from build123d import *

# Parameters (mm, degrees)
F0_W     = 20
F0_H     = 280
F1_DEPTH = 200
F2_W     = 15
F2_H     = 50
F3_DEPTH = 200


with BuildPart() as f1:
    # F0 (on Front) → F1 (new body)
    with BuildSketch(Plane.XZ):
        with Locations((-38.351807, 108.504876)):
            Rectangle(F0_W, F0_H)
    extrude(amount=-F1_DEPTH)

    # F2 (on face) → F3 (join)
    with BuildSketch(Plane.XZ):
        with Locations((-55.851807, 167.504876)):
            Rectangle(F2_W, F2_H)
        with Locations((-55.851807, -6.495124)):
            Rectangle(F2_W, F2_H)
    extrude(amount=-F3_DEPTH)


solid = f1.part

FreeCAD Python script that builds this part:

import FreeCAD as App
import Part
import Sketcher
Q = App.Units.Quantity

doc = App.newDocument("Part")
params = doc.addObject("Spreadsheet::Sheet", "Params")
for row, (alias, value) in enumerate([
    ("sketch1_width", "20 mm"),
    ("sketch1_height", "280 mm"),
    ("pad1_length", "200 mm"),
    ("sketch2_width", "15 mm"),
    ("sketch2_height", "50 mm"),
    ("pad2_length", "200 mm"),
], start=1):
    params.set(f"A{row}", alias)
    params.set(f"B{row}", "=" + value)
    params.setAlias(f"B{row}", alias)

body = doc.addObject("PartDesign::Body", "Body")

sketch1 = body.newObject("Sketcher::SketchObject", "Sketch")
sketch1.AttachmentSupport = (doc.getObject("XZ_Plane"), [""])
sketch1.MapMode = "FlatFace"
sketch1.addGeometry(Part.LineSegment(App.Vector(-48.351807, 248.504876, 0), App.Vector(-48.351807, -31.495124, 0)), False)
sketch1.addGeometry(Part.LineSegment(App.Vector(-48.351807, -31.495124, 0), App.Vector(-28.351807, -31.495124, 0)), False)
sketch1.addGeometry(Part.LineSegment(App.Vector(-28.351807, -31.495124, 0), App.Vector(-28.351807, 248.504876, 0)), False)
sketch1.addGeometry(Part.LineSegment(App.Vector(-28.351807, 248.504876, 0), App.Vector(-48.351807, 248.504876, 0)), False)
sketch1.addConstraint(Sketcher.Constraint("Coincident", 0, 2, 1, 1))
sketch1.addConstraint(Sketcher.Constraint("Coincident", 1, 2, 2, 1))
sketch1.addConstraint(Sketcher.Constraint("Coincident", 2, 2, 3, 1))
sketch1.addConstraint(Sketcher.Constraint("Coincident", 3, 2, 0, 1))
sketch1.addConstraint(Sketcher.Constraint("Vertical", 0))
sketch1.addConstraint(Sketcher.Constraint("Horizontal", 1))
sketch1.addConstraint(Sketcher.Constraint("Vertical", 2))
sketch1.addConstraint(Sketcher.Constraint("Horizontal", 3))
sketch1.addConstraint(Sketcher.Constraint("DistanceX", 1, 1, 1, 2, Q("20 mm")))
sketch1.addConstraint(Sketcher.Constraint("DistanceY", 0, 2, 0, 1, Q("280 mm")))
sketch1.addConstraint(Sketcher.Constraint("DistanceX", 0, 2, -1, 1, Q("48.351807 mm")))
sketch1.addConstraint(Sketcher.Constraint("DistanceY", 0, 2, -1, 1, Q("31.495124 mm")))
sketch1.setExpression("Constraints[8]", "Params.sketch1_width")
sketch1.setExpression("Constraints[9]", "Params.sketch1_height")
pad1 = body.newObject("PartDesign::Pad", "Pad")
pad1.Profile = sketch1
pad1.setExpression("Length", "Params.pad1_length")
pad1.Reversed = True

sketch2 = body.newObject("Sketcher::SketchObject", "Sketch001")
sketch2.AttachmentSupport = (doc.getObject("XZ_Plane"), [""])
sketch2.MapMode = "FlatFace"
sketch2.addGeometry(Part.LineSegment(App.Vector(-63.351807, 192.504876, 0), App.Vector(-63.351807, 142.504876, 0)), False)
sketch2.addGeometry(Part.LineSegment(App.Vector(-63.351807, 142.504876, 0), App.Vector(-48.351807, 142.504876, 0)), False)
sketch2.addGeometry(Part.LineSegment(App.Vector(-48.351807, 142.504876, 0), App.Vector(-48.351807, 192.504876, 0)), False)
sketch2.addGeometry(Part.LineSegment(App.Vector(-48.351807, 192.504876, 0), App.Vector(-63.351807, 192.504876, 0)), False)
sketch2.addGeometry(Part.LineSegment(App.Vector(-63.351807, 18.504876, 0), App.Vector(-63.351807, -31.495124, 0)), False)
sketch2.addGeometry(Part.LineSegment(App.Vector(-63.351807, -31.495124, 0), App.Vector(-48.351807, -31.495124, 0)), False)
sketch2.addGeometry(Part.LineSegment(App.Vector(-48.351807, -31.495124, 0), App.Vector(-48.351807, 18.504876, 0)), False)
sketch2.addGeometry(Part.LineSegment(App.Vector(-48.351807, 18.504876, 0), App.Vector(-63.351807, 18.504876, 0)), False)
sketch2.addConstraint(Sketcher.Constraint("Coincident", 0, 2, 1, 1))
sketch2.addConstraint(Sketcher.Constraint("Coincident", 1, 2, 2, 1))
sketch2.addConstraint(Sketcher.Constraint("Coincident", 2, 2, 3, 1))
sketch2.addConstraint(Sketcher.Constraint("Coincident", 3, 2, 0, 1))
sketch2.addConstraint(Sketcher.Constraint("Coincident", 4, 2, 5, 1))
sketch2.addConstraint(Sketcher.Constraint("Coincident", 5, 2, 6, 1))
sketch2.addConstraint(Sketcher.Constraint("Coincident", 6, 2, 7, 1))
sketch2.addConstraint(Sketcher.Constraint("Coincident", 7, 2, 4, 1))
sketch2.addConstraint(Sketcher.Constraint("Vertical", 0))
sketch2.addConstraint(Sketcher.Constraint("Horizontal", 1))
sketch2.addConstraint(Sketcher.Constraint("Vertical", 2))
sketch2.addConstraint(Sketcher.Constraint("Horizontal", 3))
sketch2.addConstraint(Sketcher.Constraint("Vertical", 4))
sketch2.addConstraint(Sketcher.Constraint("Horizontal", 5))
sketch2.addConstraint(Sketcher.Constraint("Vertical", 6))
sketch2.addConstraint(Sketcher.Constraint("Horizontal", 7))
sketch2.addConstraint(Sketcher.Constraint("Vertical", 3, 2, 4, 2))
sketch2.addConstraint(Sketcher.Constraint("Vertical", 2, 2, 5, 2))
sketch2.addConstraint(Sketcher.Constraint("Equal", 2, 4))
sketch2.addConstraint(Sketcher.Constraint("DistanceX", 1, 1, 1, 2, Q("15 mm")))
sketch2.addConstraint(Sketcher.Constraint("DistanceY", 0, 2, 0, 1, Q("50 mm")))
sketch2.addConstraint(Sketcher.Constraint("DistanceY", 4, 2, 0, 2, Q("174 mm")))
sketch2.addConstraint(Sketcher.Constraint("DistanceX", 0, 2, -1, 1, Q("63.351807 mm")))
sketch2.addConstraint(Sketcher.Constraint("DistanceY", -1, 1, 0, 2, Q("142.504876 mm")))
sketch2.setExpression("Constraints[19]", "Params.sketch2_width")
sketch2.setExpression("Constraints[20]", "Params.sketch2_height")
pad2 = body.newObject("PartDesign::Pad", "Pad001")
pad2.Profile = sketch2
pad2.setExpression("Length", "Params.pad2_length")
pad2.Reversed = True

doc.recompute()
